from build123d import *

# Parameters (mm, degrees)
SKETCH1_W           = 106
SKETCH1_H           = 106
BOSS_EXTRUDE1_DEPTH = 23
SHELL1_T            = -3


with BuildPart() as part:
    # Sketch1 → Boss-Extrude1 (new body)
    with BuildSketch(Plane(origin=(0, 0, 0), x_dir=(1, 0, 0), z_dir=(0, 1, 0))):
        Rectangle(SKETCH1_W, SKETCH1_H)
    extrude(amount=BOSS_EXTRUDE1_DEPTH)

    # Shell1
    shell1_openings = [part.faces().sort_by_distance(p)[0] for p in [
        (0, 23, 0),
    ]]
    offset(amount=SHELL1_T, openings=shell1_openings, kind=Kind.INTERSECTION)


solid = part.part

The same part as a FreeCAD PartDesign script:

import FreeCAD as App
import Part
import Sketcher
Q = App.Units.Quantity


def faces_at(feature, points):
    """Names of the faces that lie closest to the given points."""
    faces = feature.Shape.Faces
    near = lambda p: min(range(len(faces)), key=lambda i: faces[i].distToShape(Part.Vertex(*p))[0])
    return sorted({f"Face{near(p) + 1}" for p in points})

doc = App.newDocument("Part")
params = doc.addObject("Spreadsheet::Sheet", "Params")
for row, (alias, value) in enumerate([
    ("sketch1_width", "106 mm"),
    ("pad1_length", "23 mm"),
    ("thickness_wall", "3 mm"),
], start=1):
    params.set(f"A{row}", alias)
    params.set(f"B{row}", "=" + value)
    params.setAlias(f"B{row}", alias)

body = doc.addObject("PartDesign::Body", "Body")

sketch1 = body.newObject("Sketcher::SketchObject", "Sketch")
sketch1.AttachmentSupport = (doc.getObject("XZ_Plane"), [""])
sketch1.MapMode = "FlatFace"
sketch1.addGeometry([
    Part.LineSegment(App.Vector(-53, -53, 0), App.Vector(-53, 53, 0)),
    Part.LineSegment(App.Vector(-53, 53, 0), App.Vector(53, 53, 0)),
    Part.LineSegment(App.Vector(53, 53, 0), App.Vector(53, -53, 0)),
    Part.LineSegment(App.Vector(53, -53, 0), App.Vector(-53, -53, 0)),
], False)
sketch1.addConstraint([
    Sketcher.Constraint("Coincident", 0, 2, 1, 1),
    Sketcher.Constraint("Coincident", 1, 2, 2, 1),
    Sketcher.Constraint("Coincident", 2, 2, 3, 1),
    Sketcher.Constraint("Coincident", 3, 2, 0, 1),
    Sketcher.Constraint("Vertical", 0),
    Sketcher.Constraint("Horizontal", 1),
    Sketcher.Constraint("Vertical", 2),
    Sketcher.Constraint("Horizontal", 3),
    Sketcher.Constraint("Symmetric", 0, 2, 2, 2, -1, 1),
    Sketcher.Constraint("Equal", 3, 0),
    Sketcher.Constraint("DistanceX", 1, 1, 1, 2, Q("106 mm")),
])
sketch1.setExpression("Constraints[10]", "Params.sketch1_width")
pad1 = body.newObject("PartDesign::Pad", "Pad")
pad1.Profile = sketch1
pad1.setExpression("Length", "Params.pad1_length")
pad1.Reversed = True
doc.recompute()

thickness = body.newObject("PartDesign::Thickness", "Thickness")
thickness.Base = (pad1, faces_at(pad1, [(0, 23, 0)]))
thickness.setExpression("Value", "Params.thickness_wall")
thickness.Reversed = True
thickness.Join = "Intersection"

doc.recompute()
